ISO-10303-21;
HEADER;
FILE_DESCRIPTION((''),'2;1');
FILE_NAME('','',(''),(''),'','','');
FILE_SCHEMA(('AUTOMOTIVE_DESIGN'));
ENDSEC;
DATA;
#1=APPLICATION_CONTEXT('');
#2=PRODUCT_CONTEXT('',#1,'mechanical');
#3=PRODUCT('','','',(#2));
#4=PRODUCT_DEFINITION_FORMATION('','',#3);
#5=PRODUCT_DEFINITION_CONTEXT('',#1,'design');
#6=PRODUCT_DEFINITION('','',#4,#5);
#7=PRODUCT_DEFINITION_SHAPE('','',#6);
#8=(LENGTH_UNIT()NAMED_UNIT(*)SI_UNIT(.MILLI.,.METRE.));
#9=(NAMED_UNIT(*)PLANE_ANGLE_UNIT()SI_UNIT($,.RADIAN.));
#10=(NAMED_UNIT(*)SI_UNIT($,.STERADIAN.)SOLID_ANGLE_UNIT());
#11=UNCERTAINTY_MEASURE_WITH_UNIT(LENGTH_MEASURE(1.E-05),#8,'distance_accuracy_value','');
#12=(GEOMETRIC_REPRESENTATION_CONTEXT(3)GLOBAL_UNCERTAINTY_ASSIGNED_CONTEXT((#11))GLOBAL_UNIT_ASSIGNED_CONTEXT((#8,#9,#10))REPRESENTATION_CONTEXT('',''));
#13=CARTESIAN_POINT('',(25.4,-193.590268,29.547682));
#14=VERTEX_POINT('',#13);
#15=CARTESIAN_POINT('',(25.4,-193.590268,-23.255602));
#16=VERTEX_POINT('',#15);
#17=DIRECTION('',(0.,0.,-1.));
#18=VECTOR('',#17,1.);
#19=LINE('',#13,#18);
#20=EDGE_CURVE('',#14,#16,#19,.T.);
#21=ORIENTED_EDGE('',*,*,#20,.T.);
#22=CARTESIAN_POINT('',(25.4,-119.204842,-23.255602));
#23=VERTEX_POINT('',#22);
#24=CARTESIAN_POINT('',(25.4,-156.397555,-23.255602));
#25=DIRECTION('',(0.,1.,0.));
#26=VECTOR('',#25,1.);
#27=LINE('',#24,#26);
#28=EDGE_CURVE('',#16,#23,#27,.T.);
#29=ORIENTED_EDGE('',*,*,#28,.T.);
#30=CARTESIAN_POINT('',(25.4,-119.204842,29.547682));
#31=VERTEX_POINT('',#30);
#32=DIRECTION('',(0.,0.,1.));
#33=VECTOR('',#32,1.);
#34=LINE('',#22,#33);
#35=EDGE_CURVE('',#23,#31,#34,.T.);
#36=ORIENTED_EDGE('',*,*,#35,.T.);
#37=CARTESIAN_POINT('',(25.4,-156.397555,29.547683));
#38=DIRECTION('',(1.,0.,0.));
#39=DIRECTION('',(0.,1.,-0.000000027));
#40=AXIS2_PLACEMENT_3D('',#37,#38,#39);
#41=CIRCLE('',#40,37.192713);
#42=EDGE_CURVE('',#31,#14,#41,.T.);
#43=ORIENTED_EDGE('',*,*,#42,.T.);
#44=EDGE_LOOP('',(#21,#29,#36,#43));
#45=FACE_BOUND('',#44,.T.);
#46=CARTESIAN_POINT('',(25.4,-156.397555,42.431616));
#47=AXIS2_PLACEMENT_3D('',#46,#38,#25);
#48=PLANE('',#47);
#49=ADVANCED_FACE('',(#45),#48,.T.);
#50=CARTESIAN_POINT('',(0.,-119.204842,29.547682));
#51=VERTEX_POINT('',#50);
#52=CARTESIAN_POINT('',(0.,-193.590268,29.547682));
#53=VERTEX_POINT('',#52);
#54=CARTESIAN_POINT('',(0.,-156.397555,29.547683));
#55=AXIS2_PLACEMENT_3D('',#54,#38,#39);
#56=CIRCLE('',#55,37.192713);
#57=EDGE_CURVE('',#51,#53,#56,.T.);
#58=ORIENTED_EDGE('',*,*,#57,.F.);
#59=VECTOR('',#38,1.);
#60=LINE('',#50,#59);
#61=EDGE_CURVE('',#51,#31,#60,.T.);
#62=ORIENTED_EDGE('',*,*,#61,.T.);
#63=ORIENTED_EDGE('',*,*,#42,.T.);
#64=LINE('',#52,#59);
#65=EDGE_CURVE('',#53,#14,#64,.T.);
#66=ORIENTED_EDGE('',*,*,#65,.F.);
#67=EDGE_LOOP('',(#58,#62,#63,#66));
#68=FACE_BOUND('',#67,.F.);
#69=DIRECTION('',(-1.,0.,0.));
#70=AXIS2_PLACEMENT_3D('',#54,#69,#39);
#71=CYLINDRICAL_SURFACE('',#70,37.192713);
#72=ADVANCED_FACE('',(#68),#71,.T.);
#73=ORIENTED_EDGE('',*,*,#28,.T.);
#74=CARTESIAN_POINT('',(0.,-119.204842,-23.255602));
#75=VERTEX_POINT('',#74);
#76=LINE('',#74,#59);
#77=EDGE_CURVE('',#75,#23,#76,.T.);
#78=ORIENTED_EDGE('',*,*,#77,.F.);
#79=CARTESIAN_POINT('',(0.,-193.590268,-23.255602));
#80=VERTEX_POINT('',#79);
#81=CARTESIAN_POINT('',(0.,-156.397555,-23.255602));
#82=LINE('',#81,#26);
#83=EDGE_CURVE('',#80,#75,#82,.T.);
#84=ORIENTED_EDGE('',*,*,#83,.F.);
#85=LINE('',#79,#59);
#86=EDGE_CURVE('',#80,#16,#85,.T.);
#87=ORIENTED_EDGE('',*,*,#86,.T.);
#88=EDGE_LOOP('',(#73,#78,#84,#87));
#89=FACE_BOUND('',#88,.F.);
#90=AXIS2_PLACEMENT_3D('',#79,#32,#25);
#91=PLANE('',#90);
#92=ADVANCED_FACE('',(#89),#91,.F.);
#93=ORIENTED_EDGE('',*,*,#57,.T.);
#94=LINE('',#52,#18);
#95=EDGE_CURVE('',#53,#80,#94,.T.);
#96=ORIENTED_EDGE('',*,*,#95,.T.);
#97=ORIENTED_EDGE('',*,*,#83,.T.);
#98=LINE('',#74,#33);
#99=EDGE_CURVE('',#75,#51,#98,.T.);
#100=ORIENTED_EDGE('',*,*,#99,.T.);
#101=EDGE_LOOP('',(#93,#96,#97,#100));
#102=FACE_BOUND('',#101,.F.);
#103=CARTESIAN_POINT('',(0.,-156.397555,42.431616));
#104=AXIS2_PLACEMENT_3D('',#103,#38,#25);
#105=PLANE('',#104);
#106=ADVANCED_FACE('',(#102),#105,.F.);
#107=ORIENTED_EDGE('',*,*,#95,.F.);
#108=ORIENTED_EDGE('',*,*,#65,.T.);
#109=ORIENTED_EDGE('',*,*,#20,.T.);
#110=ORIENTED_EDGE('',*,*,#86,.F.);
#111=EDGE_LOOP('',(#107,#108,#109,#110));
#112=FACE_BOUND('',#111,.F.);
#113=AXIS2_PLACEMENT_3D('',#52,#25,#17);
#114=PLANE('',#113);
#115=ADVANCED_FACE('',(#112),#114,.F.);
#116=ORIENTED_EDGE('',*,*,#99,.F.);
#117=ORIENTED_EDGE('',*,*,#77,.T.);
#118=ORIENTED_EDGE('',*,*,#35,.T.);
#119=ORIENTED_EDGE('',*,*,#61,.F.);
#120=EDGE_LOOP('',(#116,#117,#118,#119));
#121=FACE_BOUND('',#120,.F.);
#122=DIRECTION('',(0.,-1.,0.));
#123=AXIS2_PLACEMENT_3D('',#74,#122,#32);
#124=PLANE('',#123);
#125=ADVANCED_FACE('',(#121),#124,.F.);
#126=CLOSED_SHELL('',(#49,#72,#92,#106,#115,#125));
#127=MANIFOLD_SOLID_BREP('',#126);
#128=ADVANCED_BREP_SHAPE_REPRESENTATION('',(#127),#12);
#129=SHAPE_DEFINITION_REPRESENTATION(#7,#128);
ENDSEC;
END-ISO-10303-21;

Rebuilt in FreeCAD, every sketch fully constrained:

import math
import FreeCAD as App
import Part
import Sketcher
from FreeCAD import Vector
Q = App.Units.Quantity

doc = App.newDocument("Part")
body = doc.addObject("PartDesign::Body", "Body")

# Sketch on YZ plane
sketch1 = body.newObject("Sketcher::SketchObject", "Sketch")
sketch1.AttachmentSupport = (doc.getObject("YZ_Plane"), [""])
sketch1.MapMode = "FlatFace"
sketch1.addGeometry(Part.ArcOfCircle(Part.Circle(Vector(-156, 30, 0), Vector(0, 0, 1), 37), math.radians(0), math.radians(180)), False)
sketch1.addGeometry(Part.LineSegment(Vector(-194, 30, 0), Vector(-194, -23, 0)), False)
sketch1.addGeometry(Part.LineSegment(Vector(-194, -23, 0), Vector(-119, -23, 0)), False)
sketch1.addGeometry(Part.LineSegment(Vector(-119, -23, 0), Vector(-119, 30, 0)), False)
sketch1.addConstraint(Sketcher.Constraint("Tangent", 0, 2, 1, 1))
sketch1.addConstraint(Sketcher.Constraint("Coincident", 1, 2, 2, 1))
sketch1.addConstraint(Sketcher.Constraint("Coincident", 2, 2, 3, 1))
sketch1.addConstraint(Sketcher.Constraint("Tangent", 3, 2, 0, 1))
sketch1.addConstraint(Sketcher.Constraint("Vertical", 1))
sketch1.addConstraint(Sketcher.Constraint("Horizontal", 2))
sketch1.addConstraint(Sketcher.Constraint("Vertical", 3))
sketch1.addConstraint(Sketcher.Constraint("Radius", 0, 37.192713))
sketch1.addConstraint(Sketcher.Constraint("DistanceY", 1, 2, -1, 1, 23.255602))
sketch1.addConstraint(Sketcher.Constraint("DistanceY", 1, 2, 1, 1, 52.803284))
sketch1.addConstraint(Sketcher.Constraint("DistanceX", 1, 2, -1, 1, 193.590268))
pad1 = body.newObject("PartDesign::Pad", "Pad")
pad1.Profile = sketch1
pad1.Length = Q("1 in")

doc.recompute()
